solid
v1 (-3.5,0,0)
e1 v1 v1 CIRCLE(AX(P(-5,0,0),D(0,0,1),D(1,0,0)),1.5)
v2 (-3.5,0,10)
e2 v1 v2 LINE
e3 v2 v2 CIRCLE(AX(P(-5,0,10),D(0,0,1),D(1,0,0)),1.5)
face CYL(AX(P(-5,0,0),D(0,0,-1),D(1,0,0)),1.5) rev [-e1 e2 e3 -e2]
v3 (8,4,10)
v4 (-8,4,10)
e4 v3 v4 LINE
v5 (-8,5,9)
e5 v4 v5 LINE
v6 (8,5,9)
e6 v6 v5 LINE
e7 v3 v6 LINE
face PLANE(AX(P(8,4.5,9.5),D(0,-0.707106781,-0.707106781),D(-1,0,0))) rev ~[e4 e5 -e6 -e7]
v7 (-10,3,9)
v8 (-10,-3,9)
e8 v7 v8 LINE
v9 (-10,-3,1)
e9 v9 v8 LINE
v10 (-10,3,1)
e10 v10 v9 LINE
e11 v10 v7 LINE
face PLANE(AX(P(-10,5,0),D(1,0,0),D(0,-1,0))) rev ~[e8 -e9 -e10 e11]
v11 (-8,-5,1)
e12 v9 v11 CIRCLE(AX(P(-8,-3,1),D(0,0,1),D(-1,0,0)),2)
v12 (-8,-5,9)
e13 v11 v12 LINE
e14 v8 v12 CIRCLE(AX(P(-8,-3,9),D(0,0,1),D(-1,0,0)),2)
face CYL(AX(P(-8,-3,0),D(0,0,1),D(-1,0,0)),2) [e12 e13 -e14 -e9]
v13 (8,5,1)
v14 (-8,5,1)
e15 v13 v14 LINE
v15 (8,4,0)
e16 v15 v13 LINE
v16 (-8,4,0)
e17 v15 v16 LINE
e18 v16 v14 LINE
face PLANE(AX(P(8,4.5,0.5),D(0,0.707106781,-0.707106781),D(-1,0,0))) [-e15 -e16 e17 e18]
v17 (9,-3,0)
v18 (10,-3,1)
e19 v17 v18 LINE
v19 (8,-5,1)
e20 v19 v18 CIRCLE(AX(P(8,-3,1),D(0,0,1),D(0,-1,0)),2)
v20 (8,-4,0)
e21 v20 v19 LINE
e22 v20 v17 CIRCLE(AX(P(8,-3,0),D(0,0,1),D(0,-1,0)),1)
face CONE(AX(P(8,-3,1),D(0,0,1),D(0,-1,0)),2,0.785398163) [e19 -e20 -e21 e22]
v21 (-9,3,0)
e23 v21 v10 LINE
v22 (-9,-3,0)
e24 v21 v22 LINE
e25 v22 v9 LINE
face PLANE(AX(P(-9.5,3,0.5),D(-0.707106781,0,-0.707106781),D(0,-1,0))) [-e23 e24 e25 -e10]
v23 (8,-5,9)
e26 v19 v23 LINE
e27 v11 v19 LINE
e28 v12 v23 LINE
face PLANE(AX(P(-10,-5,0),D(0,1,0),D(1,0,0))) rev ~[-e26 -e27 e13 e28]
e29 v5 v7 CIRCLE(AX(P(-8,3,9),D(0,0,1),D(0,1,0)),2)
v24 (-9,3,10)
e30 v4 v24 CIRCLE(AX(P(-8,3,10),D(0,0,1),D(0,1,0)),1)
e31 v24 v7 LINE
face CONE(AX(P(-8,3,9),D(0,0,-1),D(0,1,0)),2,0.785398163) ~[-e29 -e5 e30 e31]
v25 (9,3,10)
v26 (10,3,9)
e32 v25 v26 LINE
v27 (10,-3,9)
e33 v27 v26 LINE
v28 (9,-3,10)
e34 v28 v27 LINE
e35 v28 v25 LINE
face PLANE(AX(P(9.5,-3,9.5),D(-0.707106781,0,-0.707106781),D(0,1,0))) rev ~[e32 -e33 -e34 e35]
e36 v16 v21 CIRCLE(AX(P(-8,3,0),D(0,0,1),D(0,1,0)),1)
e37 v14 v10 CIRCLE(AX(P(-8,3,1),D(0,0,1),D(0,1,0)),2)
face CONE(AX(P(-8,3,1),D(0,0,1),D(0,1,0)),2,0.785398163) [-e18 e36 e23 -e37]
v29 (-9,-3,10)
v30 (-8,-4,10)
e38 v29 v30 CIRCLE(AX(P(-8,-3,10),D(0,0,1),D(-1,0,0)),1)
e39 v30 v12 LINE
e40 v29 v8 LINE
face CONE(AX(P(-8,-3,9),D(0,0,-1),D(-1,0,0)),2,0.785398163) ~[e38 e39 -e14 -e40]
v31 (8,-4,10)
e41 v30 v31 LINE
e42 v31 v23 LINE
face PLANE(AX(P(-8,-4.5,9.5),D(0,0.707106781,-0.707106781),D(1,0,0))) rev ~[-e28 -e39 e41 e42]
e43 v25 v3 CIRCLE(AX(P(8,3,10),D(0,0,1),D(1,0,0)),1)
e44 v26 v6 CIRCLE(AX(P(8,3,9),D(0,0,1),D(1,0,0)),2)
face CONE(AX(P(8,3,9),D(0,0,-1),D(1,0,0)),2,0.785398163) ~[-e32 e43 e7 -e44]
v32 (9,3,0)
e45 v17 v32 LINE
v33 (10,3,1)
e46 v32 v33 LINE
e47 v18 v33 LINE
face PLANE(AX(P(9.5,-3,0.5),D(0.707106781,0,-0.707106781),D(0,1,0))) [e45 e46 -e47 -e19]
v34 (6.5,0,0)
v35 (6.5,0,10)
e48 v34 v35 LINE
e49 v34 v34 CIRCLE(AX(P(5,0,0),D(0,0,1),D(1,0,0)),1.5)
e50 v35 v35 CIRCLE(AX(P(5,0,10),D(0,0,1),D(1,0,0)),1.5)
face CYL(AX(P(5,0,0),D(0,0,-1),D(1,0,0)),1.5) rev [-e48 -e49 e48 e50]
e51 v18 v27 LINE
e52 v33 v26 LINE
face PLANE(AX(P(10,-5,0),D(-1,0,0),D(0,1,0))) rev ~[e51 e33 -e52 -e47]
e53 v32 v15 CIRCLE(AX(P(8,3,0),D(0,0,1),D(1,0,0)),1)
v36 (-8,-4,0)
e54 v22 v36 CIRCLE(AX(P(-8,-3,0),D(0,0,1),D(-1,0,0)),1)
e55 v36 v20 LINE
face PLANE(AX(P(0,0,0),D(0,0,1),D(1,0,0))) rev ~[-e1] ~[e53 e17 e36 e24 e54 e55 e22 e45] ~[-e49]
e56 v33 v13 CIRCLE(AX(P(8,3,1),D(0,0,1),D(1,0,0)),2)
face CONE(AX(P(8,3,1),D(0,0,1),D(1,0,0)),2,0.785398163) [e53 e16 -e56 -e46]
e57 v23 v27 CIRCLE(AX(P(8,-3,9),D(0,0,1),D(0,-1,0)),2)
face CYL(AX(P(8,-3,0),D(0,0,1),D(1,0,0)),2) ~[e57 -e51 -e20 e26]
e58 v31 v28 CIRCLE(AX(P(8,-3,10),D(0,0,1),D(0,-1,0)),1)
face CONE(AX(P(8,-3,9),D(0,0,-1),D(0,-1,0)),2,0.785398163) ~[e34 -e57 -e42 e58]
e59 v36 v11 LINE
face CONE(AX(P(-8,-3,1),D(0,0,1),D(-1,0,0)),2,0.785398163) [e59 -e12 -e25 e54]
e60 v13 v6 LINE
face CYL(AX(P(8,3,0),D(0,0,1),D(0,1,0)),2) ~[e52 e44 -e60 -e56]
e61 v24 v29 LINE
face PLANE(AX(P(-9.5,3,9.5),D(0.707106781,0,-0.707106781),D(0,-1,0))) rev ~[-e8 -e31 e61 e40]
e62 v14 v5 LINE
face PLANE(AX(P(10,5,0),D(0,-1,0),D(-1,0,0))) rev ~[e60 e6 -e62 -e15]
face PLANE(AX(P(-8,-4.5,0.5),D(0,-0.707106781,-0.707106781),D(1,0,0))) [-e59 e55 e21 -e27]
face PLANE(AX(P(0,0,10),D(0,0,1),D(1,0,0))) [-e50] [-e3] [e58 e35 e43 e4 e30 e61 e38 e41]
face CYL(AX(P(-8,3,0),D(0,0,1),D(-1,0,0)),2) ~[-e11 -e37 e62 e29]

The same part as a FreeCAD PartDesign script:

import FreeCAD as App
import Part
import Sketcher

V = App.Vector


def edges_at(feature, points):
    """Names of the edges that pass closest to the given points."""
    edges = feature.Shape.Edges
    near = lambda p: min(range(len(edges)), key=lambda i: edges[i].distToShape(Part.Vertex(*p))[0])
    return sorted({f"Edge{near(p) + 1}" for p in points})


def add_polygon(sketch, points):
    """Adds a closed chain of lines whose ends are joined by coincident constraints."""
    first, n = sketch.GeometryCount, len(points)
    for a, b in zip(points, points[1:] + points[:1]):
        sketch.addGeometry(Part.LineSegment(App.Vector(*a, 0), App.Vector(*b, 0)), False)
    for i in range(n):
        sketch.addConstraint(Sketcher.Constraint("Coincident", first + i, 2, first + (i + 1) % n, 1))

doc = App.newDocument("Part")
body = doc.addObject("PartDesign::Body", "Body")

# Sketch on XY plane
sketch1 = doc.addObject("Sketcher::SketchObject", "Sketch")
body.addObject(sketch1)
sketch1.AttachmentSupport = (doc.XY_Plane, [""])
sketch1.MapMode = "FlatFace"
add_polygon(sketch1, [(-10, 5), (-10, -5), (10, -5), (10, 5)])  # lines 0-3
sketch1.addGeometry(Part.Circle(V(-5, 0, 0), V(0, 0, 1), 1.5), False)  # 4
sketch1.addGeometry(Part.Circle(V(5, 0, 0), V(0, 0, 1), 1.5), False)  # 5
sketch1.addConstraint(Sketcher.Constraint("Vertical", 0))
sketch1.addConstraint(Sketcher.Constraint("Horizontal", 1))
sketch1.addConstraint(Sketcher.Constraint("Vertical", 2))
sketch1.addConstraint(Sketcher.Constraint("Horizontal", 3))
sketch1.addConstraint(Sketcher.Constraint("Equal", 4, 5))
sketch1.addConstraint(Sketcher.Constraint("Symmetric", 4, 3, 5, 3, -1, 1))
sketch1.addConstraint(Sketcher.Constraint("Symmetric", 0, 2, 2, 2, -1, 1))
sketch1.addConstraint(Sketcher.Constraint("PointOnObject", 4, 3, -1))
sketch1.addConstraint(Sketcher.Constraint("Diameter", 4, 3.0))
sketch1.addConstraint(Sketcher.Constraint("DistanceX", 1, 1, 1, 2, 20.0))
sketch1.addConstraint(Sketcher.Constraint("DistanceY", 0, 2, 0, 1, 10.0))
sketch1.addConstraint(Sketcher.Constraint("DistanceX", 4, 3, -1, 1, 5.0))
pad1 = doc.addObject("PartDesign::Pad", "Pad")
body.addObject(pad1)
pad1.Profile = sketch1
pad1.Length = 10
doc.recompute()

fillet = doc.addObject("PartDesign::Fillet", "Fillet")
body.addObject(fillet)
fillet.Base = (pad1, edges_at(pad1, [
    (-10, 5, 5),
    (-10, -5, 5),
    (10, -5, 5),
    (10, 5, 5),
]))
fillet.Radius = 2
doc.recompute()

chamfer = doc.addObject("PartDesign::Chamfer", "Chamfer")
body.addObject(chamfer)
chamfer.Base = (fillet, edges_at(fillet, [
    (0, 5, 0),
    (-9.414, 4.414, 0),
    (-10, 0, 0),
    (-9.414, -4.414, 0),
    (0, -5, 0),
    (9.414, -4.414, 0),
    (10, 0, 0),
    (9.414, 4.414, 0),
    (0, 5, 10),
    (-9.414, 4.414, 10),
    (-10, 0, 10),
    (-9.414, -4.414, 10),
    (0, -5, 10),
    (9.414, -4.414, 10),
    (10, 0, 10),
    (9.414, 4.414, 10),
]))
chamfer.Size = 1

doc.recompute()
